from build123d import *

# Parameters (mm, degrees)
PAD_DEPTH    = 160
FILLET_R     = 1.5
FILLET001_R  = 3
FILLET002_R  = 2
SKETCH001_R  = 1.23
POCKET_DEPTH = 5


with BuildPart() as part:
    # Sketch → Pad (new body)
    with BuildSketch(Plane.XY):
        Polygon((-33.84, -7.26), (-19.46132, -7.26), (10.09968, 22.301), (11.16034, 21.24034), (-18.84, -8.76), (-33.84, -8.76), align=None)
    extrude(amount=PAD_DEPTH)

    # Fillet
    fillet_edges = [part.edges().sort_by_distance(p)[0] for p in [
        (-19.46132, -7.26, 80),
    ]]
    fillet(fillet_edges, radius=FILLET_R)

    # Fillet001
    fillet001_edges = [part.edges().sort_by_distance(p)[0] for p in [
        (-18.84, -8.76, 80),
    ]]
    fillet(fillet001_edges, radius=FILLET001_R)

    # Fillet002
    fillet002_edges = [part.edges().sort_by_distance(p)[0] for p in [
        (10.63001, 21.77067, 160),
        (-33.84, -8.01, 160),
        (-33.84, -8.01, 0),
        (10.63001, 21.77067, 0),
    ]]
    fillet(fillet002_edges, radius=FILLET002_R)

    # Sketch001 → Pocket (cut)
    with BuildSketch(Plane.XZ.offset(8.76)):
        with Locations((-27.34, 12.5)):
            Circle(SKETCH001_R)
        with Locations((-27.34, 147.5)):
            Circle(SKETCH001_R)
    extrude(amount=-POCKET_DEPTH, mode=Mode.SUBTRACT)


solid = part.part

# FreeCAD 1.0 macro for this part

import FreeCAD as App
import Part
import Sketcher
from FreeCAD import Vector
Q = App.Units.Quantity


def edges_at(feature, points):
    """Names of the edges that pass closest to the given points."""
    edges = feature.Shape.Edges
    near = lambda p: min(range(len(edges)), key=lambda i: edges[i].distToShape(Part.Vertex(*p))[0])
    return sorted({f"Edge{near(p) + 1}" for p in points})


def add_polygon(sketch, points):
    """Adds a closed chain of lines whose ends are joined by coincident constraints."""
    first, n = sketch.GeometryCount, len(points)
    for a, b in zip(points, points[1:] + points[:1]):
        sketch.addGeometry(Part.LineSegment(App.Vector(*a, 0), App.Vector(*b, 0)), False)
    for i in range(n):
        sketch.addConstraint(Sketcher.Constraint("Coincident", first + i, 2, first + (i + 1) % n, 1))

doc = App.newDocument("Part")
body = doc.addObject("PartDesign::Body", "Body")

# Sketch on XY plane
sketch1 = doc.addObject("Sketcher::SketchObject", "Sketch")
body.addObject(sketch1)
sketch1.AttachmentSupport = (doc.XY_Plane, [""])
sketch1.MapMode = "FlatFace"
add_polygon(sketch1, [(-19.5, -7.3), (-33.8, -7.3), (-33.8, -8.8), (-18.8, -8.8), (11.2, 21.2), (10.1, 22.3)])  # lines 0-5
sketch1.addConstraint([
    Sketcher.Constraint("Horizontal", 0),
    Sketcher.Constraint("Vertical", 1),
    Sketcher.Constraint("Horizontal", 2),
    Sketcher.Constraint("Perpendicular", 3, 4),
    Sketcher.Constraint("Perpendicular", 4, 5),
    Sketcher.Constraint("DistanceX", 2, 1, 2, 2, 15.0),
    Sketcher.Constraint("Angle", 3, Q("45 deg")),
    Sketcher.Constraint("DistanceY", 1, 2, 1, 1, 1.5),
    Sketcher.Constraint("Distance", 4, 1.5),
    Sketcher.Constraint("DistanceX", 0, 2, -1, 1, 33.84),
    Sketcher.Constraint("DistanceY", 0, 2, -1, 1, 7.26),
    Sketcher.Constraint("DistanceY", -1, 1, 4, 2, 22.301),
])
pad1 = doc.addObject("PartDesign::Pad", "Pad")
body.addObject(pad1)
pad1.Profile = sketch1
pad1.Length = 160
doc.recompute()

fillet = doc.addObject("PartDesign::Fillet", "Fillet")
body.addObject(fillet)
fillet.Base = (pad1, edges_at(pad1, [(-19.461, -7.26, 80)]))
fillet.Radius = 1.5
doc.recompute()

fillet2 = doc.addObject("PartDesign::Fillet", "Fillet001")
body.addObject(fillet2)
fillet2.Base = (fillet, edges_at(fillet, [(-18.84, -8.76, 80)]))
fillet2.Radius = 3
doc.recompute()

fillet3 = doc.addObject("PartDesign::Fillet", "Fillet002")
body.addObject(fillet3)
fillet3.Base = (fillet2, edges_at(fillet2, [
    (10.63, 21.771, 160),
    (-33.84, -8.01, 160),
    (-33.84, -8.01, 0),
    (10.63, 21.771, 0),
]))
fillet3.Radius = 2

# Sketch on XZ plane
sketch2 = doc.addObject("Sketcher::SketchObject", "Sketch001")
body.addObject(sketch2)
sketch2.AttachmentSupport = (doc.XZ_Plane, [""])
sketch2.MapMode = "FlatFace"
sketch2.AttachmentOffset = App.Placement(Vector(0, 0, 8.76), App.Rotation())
sketch2.addGeometry([
    Part.Circle(Vector(-27.3, 12.5, 0), Vector(0, 0, 1), 1.2),
    Part.Circle(Vector(-27.3, 147.5, 0), Vector(0, 0, 1), 1.2),
], False)
sketch2.addConstraint([
    Sketcher.Constraint("Equal", 0, 1),
    Sketcher.Constraint("Vertical", 0, 3, 1, 3),
    Sketcher.Constraint("Diameter", 0, 2.46),
    Sketcher.Constraint("DistanceY", 0, 3, 1, 3, 135.0),
    Sketcher.Constraint("DistanceY", -1, 1, 0, 3, 12.5),
    Sketcher.Constraint("DistanceX", 0, 3, -1, 1, 27.34),
])
pocket1 = doc.addObject("PartDesign::Pocket", "Pocket")
body.addObject(pocket1)
pocket1.Profile = sketch2
pocket1.Length = 5

doc.recompute()
